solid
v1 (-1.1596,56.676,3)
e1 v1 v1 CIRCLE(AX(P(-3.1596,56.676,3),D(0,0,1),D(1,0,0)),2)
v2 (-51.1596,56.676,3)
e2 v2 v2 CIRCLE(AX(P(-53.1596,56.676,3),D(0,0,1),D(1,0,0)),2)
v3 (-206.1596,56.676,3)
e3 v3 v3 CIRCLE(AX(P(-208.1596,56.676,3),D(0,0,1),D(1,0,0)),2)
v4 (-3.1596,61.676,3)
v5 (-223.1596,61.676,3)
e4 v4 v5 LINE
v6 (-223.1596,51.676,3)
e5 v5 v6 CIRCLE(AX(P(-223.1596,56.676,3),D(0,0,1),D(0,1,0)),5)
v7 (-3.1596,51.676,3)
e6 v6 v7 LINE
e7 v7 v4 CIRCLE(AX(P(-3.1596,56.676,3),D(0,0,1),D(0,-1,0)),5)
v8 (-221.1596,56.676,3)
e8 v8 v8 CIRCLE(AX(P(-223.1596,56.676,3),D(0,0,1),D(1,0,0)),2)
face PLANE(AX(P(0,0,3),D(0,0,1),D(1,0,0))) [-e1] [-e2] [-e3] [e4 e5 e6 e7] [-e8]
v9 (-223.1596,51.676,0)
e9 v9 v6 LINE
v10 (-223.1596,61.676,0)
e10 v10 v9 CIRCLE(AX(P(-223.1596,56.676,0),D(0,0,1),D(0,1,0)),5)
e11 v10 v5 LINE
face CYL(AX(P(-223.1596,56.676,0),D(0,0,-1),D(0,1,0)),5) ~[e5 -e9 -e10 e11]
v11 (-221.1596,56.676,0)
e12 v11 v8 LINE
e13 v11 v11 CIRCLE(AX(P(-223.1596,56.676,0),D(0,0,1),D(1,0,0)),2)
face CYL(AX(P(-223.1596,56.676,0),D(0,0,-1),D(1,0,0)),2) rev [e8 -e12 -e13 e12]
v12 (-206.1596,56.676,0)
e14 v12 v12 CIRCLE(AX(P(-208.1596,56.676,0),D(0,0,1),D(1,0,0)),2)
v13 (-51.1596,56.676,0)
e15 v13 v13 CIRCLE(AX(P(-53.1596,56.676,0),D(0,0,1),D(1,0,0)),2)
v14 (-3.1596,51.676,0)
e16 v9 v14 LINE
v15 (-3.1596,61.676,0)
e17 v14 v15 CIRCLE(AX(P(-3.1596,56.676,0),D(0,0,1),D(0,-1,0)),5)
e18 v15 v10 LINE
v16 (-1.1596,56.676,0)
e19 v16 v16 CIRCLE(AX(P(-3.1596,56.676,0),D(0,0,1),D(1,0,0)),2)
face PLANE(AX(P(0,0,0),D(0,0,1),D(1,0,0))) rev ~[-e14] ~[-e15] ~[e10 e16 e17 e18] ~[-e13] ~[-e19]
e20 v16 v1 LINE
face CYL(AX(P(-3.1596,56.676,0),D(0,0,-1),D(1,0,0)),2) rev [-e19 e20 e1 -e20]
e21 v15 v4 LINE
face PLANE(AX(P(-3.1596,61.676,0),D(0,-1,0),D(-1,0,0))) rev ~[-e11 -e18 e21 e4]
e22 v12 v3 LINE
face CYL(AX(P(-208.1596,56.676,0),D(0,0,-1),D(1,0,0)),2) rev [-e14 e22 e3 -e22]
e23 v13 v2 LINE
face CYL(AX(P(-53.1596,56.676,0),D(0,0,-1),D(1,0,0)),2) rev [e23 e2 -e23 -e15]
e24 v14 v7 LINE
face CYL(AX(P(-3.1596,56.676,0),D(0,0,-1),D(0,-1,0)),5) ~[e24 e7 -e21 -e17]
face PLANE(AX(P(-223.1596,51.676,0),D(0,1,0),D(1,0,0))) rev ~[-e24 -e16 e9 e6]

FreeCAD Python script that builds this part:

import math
import FreeCAD as App
import Part
import Sketcher

doc = App.newDocument("Part")
body = doc.addObject("PartDesign::Body", "Body")

# Sketch on XY plane
sketch1 = doc.addObject("Sketcher::SketchObject", "Sketch")
body.addObject(sketch1)
sketch1.AttachmentSupport = (doc.XY_Plane, [""])
sketch1.MapMode = "FlatFace"
sketch1.addGeometry(Part.ArcOfCircle(Part.Circle(App.Vector(-223.2, 56.7, 0), App.Vector(0, 0, 1), 5), math.radians(90), math.radians(270)), False)
sketch1.addGeometry(Part.LineSegment(App.Vector(-223.2, 51.7, 0), App.Vector(-3.2, 51.7, 0)), False)
sketch1.addGeometry(Part.ArcOfCircle(Part.Circle(App.Vector(-3.2, 56.7, 0), App.Vector(0, 0, 1), 5), math.radians(-90), math.radians(90)), False)
sketch1.addGeometry(Part.LineSegment(App.Vector(-3.2, 61.7, 0), App.Vector(-223.2, 61.7, 0)), False)
sketch1.addGeometry(Part.Circle(App.Vector(-223.2, 56.7, 0), App.Vector(0, 0, 1), 2), False)
sketch1.addGeometry(Part.Circle(App.Vector(-208.2, 56.7, 0), App.Vector(0, 0, 1), 2), False)
sketch1.addGeometry(Part.Circle(App.Vector(-53.2, 56.7, 0), App.Vector(0, 0, 1), 2), False)
sketch1.addGeometry(Part.Circle(App.Vector(-3.2, 56.7, 0), App.Vector(0, 0, 1), 2), False)
sketch1.addConstraint(Sketcher.Constraint("Tangent", 0, 2, 1, 1))
sketch1.addConstraint(Sketcher.Constraint("Tangent", 1, 2, 2, 1))
sketch1.addConstraint(Sketcher.Constraint("Tangent", 2, 2, 3, 1))
sketch1.addConstraint(Sketcher.Constraint("Tangent", 3, 2, 0, 1))
sketch1.addConstraint(Sketcher.Constraint("Horizontal", 1))
sketch1.addConstraint(Sketcher.Constraint("Horizontal", 3))
sketch1.addConstraint(Sketcher.Constraint("Coincident", 4, 3, 0, 3))
sketch1.addConstraint(Sketcher.Constraint("Coincident", 7, 3, 2, 3))
sketch1.addConstraint(Sketcher.Constraint("Equal", 4, 5))
sketch1.addConstraint(Sketcher.Constraint("Equal", 5, 6))
sketch1.addConstraint(Sketcher.Constraint("Equal", 6, 7))
sketch1.addConstraint(Sketcher.Constraint("Horizontal", 4, 3, 5, 3))
sketch1.addConstraint(Sketcher.Constraint("Horizontal", 5, 3, 6, 3))
sketch1.addConstraint(Sketcher.Constraint("Diameter", 4, 4.0))
sketch1.addConstraint(Sketcher.Constraint("Radius", 0, 5.0))
sketch1.addConstraint(Sketcher.Constraint("DistanceX", 1, 1, 1, 2, 220.0))
sketch1.addConstraint(Sketcher.Constraint("DistanceX", 0, 3, 5, 3, 15.0))
sketch1.addConstraint(Sketcher.Constraint("DistanceX", 6, 3, 2, 3, 50.0))
sketch1.addConstraint(Sketcher.Constraint("DistanceY", -1, 1, 0, 3, 56.676))
sketch1.addConstraint(Sketcher.Constraint("DistanceX", 0, 3, -1, 1, 223.1596))
pad1 = doc.addObject("PartDesign::Pad", "Pad")
body.addObject(pad1)
pad1.Profile = sketch1
pad1.Length = 3

doc.recompute()
